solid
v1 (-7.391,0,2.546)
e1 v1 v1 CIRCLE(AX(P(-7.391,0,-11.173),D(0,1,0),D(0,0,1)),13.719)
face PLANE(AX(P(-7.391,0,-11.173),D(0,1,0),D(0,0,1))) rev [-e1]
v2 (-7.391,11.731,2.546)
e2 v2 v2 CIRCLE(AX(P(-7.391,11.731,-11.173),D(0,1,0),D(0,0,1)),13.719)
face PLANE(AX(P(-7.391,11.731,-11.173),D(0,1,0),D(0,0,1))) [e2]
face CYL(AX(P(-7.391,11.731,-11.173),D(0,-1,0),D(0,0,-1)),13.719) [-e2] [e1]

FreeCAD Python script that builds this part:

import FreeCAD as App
import Part
import Sketcher

doc = App.newDocument("Part")
body = doc.addObject("PartDesign::Body", "Body")

# Sketch on XZ plane
sketch1 = doc.addObject("Sketcher::SketchObject", "Sketch")
body.addObject(sketch1)
sketch1.AttachmentSupport = (doc.XZ_Plane, [""])
sketch1.MapMode = "FlatFace"
sketch1.addGeometry(Part.Circle(App.Vector(-7.391, -11.173, 0), App.Vector(0, 0, 1), 13.719), False)
sketch1.addConstraint([
    Sketcher.Constraint("Diameter", 0, 27.438),
    Sketcher.Constraint("DistanceX", 0, 3, -1, 1, 7.391),
    Sketcher.Constraint("DistanceY", 0, 3, -1, 1, 11.173),
])
pad1 = doc.addObject("PartDesign::Pad", "Pad")
body.addObject(pad1)
pad1.Profile = sketch1
pad1.Length = 11.731
pad1.Reversed = True

doc.recompute()
